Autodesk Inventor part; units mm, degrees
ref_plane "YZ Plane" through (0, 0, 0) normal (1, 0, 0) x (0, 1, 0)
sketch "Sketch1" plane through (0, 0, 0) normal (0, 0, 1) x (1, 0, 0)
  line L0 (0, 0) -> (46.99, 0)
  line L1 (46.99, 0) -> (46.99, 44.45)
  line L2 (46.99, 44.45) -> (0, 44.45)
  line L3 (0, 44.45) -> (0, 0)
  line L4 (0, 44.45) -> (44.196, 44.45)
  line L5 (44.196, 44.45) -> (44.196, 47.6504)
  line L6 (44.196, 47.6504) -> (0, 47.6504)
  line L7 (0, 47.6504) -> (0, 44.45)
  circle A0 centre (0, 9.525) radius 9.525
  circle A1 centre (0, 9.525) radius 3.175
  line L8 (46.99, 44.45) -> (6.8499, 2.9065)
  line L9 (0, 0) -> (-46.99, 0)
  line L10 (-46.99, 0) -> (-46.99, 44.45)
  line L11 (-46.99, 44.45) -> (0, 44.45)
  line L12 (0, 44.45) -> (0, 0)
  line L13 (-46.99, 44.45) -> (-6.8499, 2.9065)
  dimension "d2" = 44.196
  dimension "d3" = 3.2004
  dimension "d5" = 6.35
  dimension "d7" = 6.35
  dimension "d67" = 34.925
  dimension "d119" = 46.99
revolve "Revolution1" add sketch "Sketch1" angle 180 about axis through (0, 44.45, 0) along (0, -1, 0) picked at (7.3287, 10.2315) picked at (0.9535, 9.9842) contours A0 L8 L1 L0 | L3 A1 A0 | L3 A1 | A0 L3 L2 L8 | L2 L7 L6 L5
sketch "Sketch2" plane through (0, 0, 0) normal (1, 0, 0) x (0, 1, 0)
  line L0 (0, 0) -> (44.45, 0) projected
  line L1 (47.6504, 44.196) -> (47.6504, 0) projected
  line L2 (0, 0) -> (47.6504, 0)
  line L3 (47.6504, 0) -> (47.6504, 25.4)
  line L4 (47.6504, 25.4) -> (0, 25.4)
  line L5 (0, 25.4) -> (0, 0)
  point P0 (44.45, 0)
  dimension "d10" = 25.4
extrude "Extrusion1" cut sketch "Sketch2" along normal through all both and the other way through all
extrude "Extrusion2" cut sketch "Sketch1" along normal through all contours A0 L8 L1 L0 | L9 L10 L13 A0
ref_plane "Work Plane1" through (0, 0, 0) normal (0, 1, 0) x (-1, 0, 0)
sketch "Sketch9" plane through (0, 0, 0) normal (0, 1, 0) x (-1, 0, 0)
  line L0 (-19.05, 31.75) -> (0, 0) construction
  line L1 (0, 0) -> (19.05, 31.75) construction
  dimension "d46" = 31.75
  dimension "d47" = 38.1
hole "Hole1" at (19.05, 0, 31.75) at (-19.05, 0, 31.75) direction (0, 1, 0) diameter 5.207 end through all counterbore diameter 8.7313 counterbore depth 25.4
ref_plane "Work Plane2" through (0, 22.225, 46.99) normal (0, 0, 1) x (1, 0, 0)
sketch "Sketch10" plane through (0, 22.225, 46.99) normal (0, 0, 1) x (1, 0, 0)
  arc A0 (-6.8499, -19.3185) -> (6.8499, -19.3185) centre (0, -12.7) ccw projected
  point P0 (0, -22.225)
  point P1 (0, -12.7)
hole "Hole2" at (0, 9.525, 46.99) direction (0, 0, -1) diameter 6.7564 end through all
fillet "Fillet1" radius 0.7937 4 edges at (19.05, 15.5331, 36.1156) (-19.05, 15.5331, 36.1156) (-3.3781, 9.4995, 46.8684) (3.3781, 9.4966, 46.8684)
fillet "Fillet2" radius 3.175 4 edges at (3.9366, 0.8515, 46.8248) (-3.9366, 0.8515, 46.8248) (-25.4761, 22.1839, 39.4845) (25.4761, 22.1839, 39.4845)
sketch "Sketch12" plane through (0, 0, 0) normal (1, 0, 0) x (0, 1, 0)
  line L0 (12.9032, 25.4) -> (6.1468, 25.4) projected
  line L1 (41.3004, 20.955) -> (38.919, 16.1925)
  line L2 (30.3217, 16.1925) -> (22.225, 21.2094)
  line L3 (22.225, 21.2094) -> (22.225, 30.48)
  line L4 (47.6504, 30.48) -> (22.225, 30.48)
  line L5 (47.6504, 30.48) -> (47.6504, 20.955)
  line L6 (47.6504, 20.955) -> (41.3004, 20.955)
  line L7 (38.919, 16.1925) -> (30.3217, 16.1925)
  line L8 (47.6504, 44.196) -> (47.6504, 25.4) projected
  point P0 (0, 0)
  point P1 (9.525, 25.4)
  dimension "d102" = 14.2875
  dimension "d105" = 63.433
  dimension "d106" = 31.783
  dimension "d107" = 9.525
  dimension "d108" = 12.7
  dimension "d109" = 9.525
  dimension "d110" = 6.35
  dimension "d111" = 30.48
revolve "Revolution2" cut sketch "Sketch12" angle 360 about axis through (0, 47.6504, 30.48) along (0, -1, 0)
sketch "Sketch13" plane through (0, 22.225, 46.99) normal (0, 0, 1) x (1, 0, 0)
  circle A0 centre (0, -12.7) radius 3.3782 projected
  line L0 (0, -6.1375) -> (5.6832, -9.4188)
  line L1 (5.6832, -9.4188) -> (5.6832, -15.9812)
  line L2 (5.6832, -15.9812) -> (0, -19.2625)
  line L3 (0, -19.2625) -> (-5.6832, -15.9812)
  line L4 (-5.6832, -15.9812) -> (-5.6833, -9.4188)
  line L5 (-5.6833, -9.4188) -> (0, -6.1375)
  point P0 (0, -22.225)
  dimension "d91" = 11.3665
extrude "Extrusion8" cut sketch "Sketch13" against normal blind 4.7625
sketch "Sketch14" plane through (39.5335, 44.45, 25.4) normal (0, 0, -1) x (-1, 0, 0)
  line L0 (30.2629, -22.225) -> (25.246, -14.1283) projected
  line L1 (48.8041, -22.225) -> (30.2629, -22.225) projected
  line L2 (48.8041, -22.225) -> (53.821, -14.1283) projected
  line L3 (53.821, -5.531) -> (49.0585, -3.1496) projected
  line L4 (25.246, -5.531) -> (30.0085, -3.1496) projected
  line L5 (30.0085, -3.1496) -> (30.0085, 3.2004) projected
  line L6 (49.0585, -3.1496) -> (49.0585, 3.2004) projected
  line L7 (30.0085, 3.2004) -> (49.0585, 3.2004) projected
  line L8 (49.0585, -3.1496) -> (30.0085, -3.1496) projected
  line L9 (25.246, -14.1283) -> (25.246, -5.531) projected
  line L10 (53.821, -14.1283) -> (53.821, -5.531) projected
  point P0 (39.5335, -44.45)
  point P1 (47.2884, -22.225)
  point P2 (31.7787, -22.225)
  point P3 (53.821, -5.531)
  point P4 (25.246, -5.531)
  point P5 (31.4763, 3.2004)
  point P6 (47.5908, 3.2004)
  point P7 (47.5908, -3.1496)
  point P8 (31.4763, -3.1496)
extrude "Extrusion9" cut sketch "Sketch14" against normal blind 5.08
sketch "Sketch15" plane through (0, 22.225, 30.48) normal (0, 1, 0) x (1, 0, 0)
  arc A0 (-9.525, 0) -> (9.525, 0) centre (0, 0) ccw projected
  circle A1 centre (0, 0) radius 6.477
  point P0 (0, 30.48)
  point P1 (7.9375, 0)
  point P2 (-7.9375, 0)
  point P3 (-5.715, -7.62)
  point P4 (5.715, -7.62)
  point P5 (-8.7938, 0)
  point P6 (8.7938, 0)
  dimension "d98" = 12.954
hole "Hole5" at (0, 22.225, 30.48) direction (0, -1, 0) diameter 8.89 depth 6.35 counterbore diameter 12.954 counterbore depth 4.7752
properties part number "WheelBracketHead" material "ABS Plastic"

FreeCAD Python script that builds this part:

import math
import FreeCAD as App
import Part
import Sketcher

V = App.Vector
Q = App.Units.Quantity


def edges_at(feature, points):
    """Names of the edges that pass closest to the given points."""
    edges = feature.Shape.Edges
    near = lambda p: min(range(len(edges)), key=lambda i: edges[i].distToShape(Part.Vertex(*p))[0])
    return sorted({f"Edge{near(p) + 1}" for p in points})


def add_polygon(sketch, points):
    """Adds a closed chain of lines whose ends are joined by coincident constraints."""
    first, n = sketch.GeometryCount, len(points)
    for a, b in zip(points, points[1:] + points[:1]):
        sketch.addGeometry(Part.LineSegment(App.Vector(*a, 0), App.Vector(*b, 0)), False)
    for i in range(n):
        sketch.addConstraint(Sketcher.Constraint("Coincident", first + i, 2, first + (i + 1) % n, 1))

doc = App.newDocument("Part")
body = doc.addObject("PartDesign::Body", "Body")

# Sketch on XY plane
sketch1 = body.newObject("Sketcher::SketchObject", "Sketch")
sketch1.AttachmentSupport = (doc.getObject("XY_Plane"), [""])
sketch1.MapMode = "FlatFace"
add_polygon(sketch1, [(47, 0), (47, 44.5), (44.2, 44.5), (44.2, 47.7), (0, 47.7), (0, 0)])  # lines 0-5
sketch1.addConstraint(Sketcher.Constraint("Vertical", 0))
sketch1.addConstraint(Sketcher.Constraint("Horizontal", 1))
sketch1.addConstraint(Sketcher.Constraint("Vertical", 2))
sketch1.addConstraint(Sketcher.Constraint("Horizontal", 3))
sketch1.addConstraint(Sketcher.Constraint("Vertical", 4))
sketch1.addConstraint(Sketcher.Constraint("Horizontal", 5))
sketch1.addConstraint(Sketcher.Constraint("Coincident", 4, 2, -1, 1))
sketch1.addConstraint(Sketcher.Constraint("DistanceX", 3, 2, 3, 1, Q("1.74 in")))
sketch1.addConstraint(Sketcher.Constraint("DistanceX", 5, 1, 5, 2, Q("1.85 in")))
sketch1.addConstraint(Sketcher.Constraint("DistanceY", 2, 1, 2, 2, Q("0.126 in")))
sketch1.addConstraint(Sketcher.Constraint("DistanceY", 0, 1, 0, 2, Q("1.75 in")))
revolution = body.newObject("PartDesign::Revolution", "Revolution")
revolution.Profile = sketch1
revolution.ReferenceAxis = (sketch1, ["V_Axis"])
revolution.Angle = 180
revolution.Reversed = True

# Sketch on YZ plane
sketch2 = body.newObject("Sketcher::SketchObject", "Sketch001")
sketch2.AttachmentSupport = (doc.getObject("YZ_Plane"), [""])
sketch2.MapMode = "FlatFace"
add_polygon(sketch2, [(0, 25), (0, 0), (48, 0), (48, 25)])  # lines 0-3
sketch2.addConstraint(Sketcher.Constraint("Vertical", 0))
sketch2.addConstraint(Sketcher.Constraint("Horizontal", 1))
sketch2.addConstraint(Sketcher.Constraint("Vertical", 2))
sketch2.addConstraint(Sketcher.Constraint("Horizontal", 3))
sketch2.addConstraint(Sketcher.Constraint("Coincident", 0, 2, -1, 1))
sketch2.addConstraint(Sketcher.Constraint("DistanceY", 0, 2, 0, 1, Q("1 in")))
sketch2.addConstraint(Sketcher.Constraint("DistanceX", 1, 1, 1, 2, Q("1.876 in")))
pocket1 = body.newObject("PartDesign::Pocket", "Pocket")
pocket1.Profile = sketch2
pocket1.Type = "ThroughAll"
pocket1.Midplane = True

# Sketch on XY plane
sketch3 = body.newObject("Sketcher::SketchObject", "Sketch002")
sketch3.AttachmentSupport = (doc.getObject("XY_Plane"), [""])
sketch3.MapMode = "FlatFace"
sketch3.addGeometry(Part.ArcOfCircle(Part.Circle(V(0, 10, 0), V(0, 0, 1), 10), math.radians(-90), math.radians(-44)), False)
sketch3.addGeometry(Part.LineSegment(V(0, 0, 0), V(47, 0, 0)), False)
sketch3.addGeometry(Part.LineSegment(V(47, 0, 0), V(47, 44, 0)), False)
sketch3.addGeometry(Part.LineSegment(V(47, 44, 0), V(7, 3, 0)), False)
sketch3.addGeometry(Part.LineSegment(V(-47, 0, 0), V(0, 0, 0)), False)
sketch3.addGeometry(Part.ArcOfCircle(Part.Circle(V(0, 10, 0), V(0, 0, 1), 10), math.radians(-136), math.radians(-90)), False)
sketch3.addGeometry(Part.LineSegment(V(-7, 3, 0), V(-47, 44, 0)), False)
sketch3.addGeometry(Part.LineSegment(V(-47, 44, 0), V(-47, 0, 0)), False)
sketch3.addConstraint(Sketcher.Constraint("Tangent", 0, 1, 1, 1))
sketch3.addConstraint(Sketcher.Constraint("Coincident", 1, 2, 2, 1))
sketch3.addConstraint(Sketcher.Constraint("Coincident", 2, 2, 3, 1))
sketch3.addConstraint(Sketcher.Constraint("Tangent", 3, 2, 0, 2))
sketch3.addConstraint(Sketcher.Constraint("Tangent", 4, 2, 5, 2))
sketch3.addConstraint(Sketcher.Constraint("Tangent", 5, 1, 6, 1))
sketch3.addConstraint(Sketcher.Constraint("Coincident", 6, 2, 7, 1))
sketch3.addConstraint(Sketcher.Constraint("Coincident", 7, 2, 4, 1))
sketch3.addConstraint(Sketcher.Constraint("Horizontal", 1))
sketch3.addConstraint(Sketcher.Constraint("Vertical", 2))
sketch3.addConstraint(Sketcher.Constraint("Horizontal", 4))
sketch3.addConstraint(Sketcher.Constraint("Vertical", 7))
sketch3.addConstraint(Sketcher.Constraint("Coincident", 0, 1, -1, 1))
sketch3.addConstraint(Sketcher.Constraint("Coincident", 4, 2, -1, 1))
sketch3.addConstraint(Sketcher.Constraint("Equal", 0, 5))
sketch3.addConstraint(Sketcher.Constraint("Symmetric", 2, 2, 6, 2, -2))
sketch3.addConstraint(Sketcher.Constraint("DistanceX", 1, 1, 1, 2, Q("1.85 in")))
sketch3.addConstraint(Sketcher.Constraint("Radius", 0, Q("0.375 in")))
sketch3.addConstraint(Sketcher.Constraint("DistanceY", 0, 3, 2, 2, Q("1.375 in")))
pocket2 = body.newObject("PartDesign::Pocket", "Pocket001")
pocket2.Profile = sketch3
pocket2.Type = "ThroughAll"
pocket2.Reversed = True

# Sketch on XZ plane
sketch4 = body.newObject("Sketcher::SketchObject", "Sketch003")
sketch4.AttachmentSupport = (doc.getObject("XZ_Plane"), [""])
sketch4.MapMode = "FlatFace"
sketch4.addGeometry(Part.Circle(V(19.1, 31.8, 0), V(0, 0, 1), 2.6), False)
sketch4.addGeometry(Part.Circle(V(-19.1, 31.8, 0), V(0, 0, 1), 2.6), False)
sketch4.addConstraint(Sketcher.Constraint("Equal", 0, 1))
sketch4.addConstraint(Sketcher.Constraint("Symmetric", 0, 3, 1, 3, -2))
sketch4.addConstraint(Sketcher.Constraint("Diameter", 0, Q("0.205 in")))
sketch4.addConstraint(Sketcher.Constraint("DistanceX", 1, 3, 0, 3, Q("1.5 in")))
sketch4.addConstraint(Sketcher.Constraint("DistanceY", -1, 1, 0, 3, Q("1.25 in")))
doc.recompute()
hole = body.newObject("PartDesign::Hole", "Hole")
hole.Profile = sketch4
hole.ThreadType = "None"
hole.Diameter = Q("0.205 in")
hole.DepthType = "ThroughAll"
hole.HoleCutType = "Counterbore"
hole.HoleCutDiameter = Q("0.343752 in")
hole.HoleCutDepth = Q("1 in")

# Sketch on XY plane
sketch5 = body.newObject("Sketcher::SketchObject", "Sketch004")
sketch5.AttachmentSupport = (doc.getObject("XY_Plane"), [""])
sketch5.MapMode = "FlatFace"
sketch5.AttachmentOffset = App.Placement(V(0, 0, 1.85 * 25.4), App.Rotation())
sketch5.addGeometry(Part.Circle(V(0, 9.5, 0), V(0, 0, 1), 3.4), False)
sketch5.addConstraint(Sketcher.Constraint("PointOnObject", 0, 3, -2))
sketch5.addConstraint(Sketcher.Constraint("Diameter", 0, Q("0.266 in")))
sketch5.addConstraint(Sketcher.Constraint("DistanceY", -1, 1, 0, 3, Q("0.375 in")))
doc.recompute()
hole2 = body.newObject("PartDesign::Hole", "Hole001")
hole2.Profile = sketch5
hole2.ThreadType = "None"
hole2.Diameter = Q("0.266 in")
hole2.DepthType = "ThroughAll"
doc.recompute()

fillet = body.newObject("PartDesign::Fillet", "Fillet")
fillet.Base = (hole2, edges_at(hole2, [
    (19.05, 15.533, 36.116),
    (-19.05, 15.533, 36.116),
    (-3.378, 9.499, 46.868),
    (3.378, 9.497, 46.868),
]))
fillet.Radius = Q("0.031248 in")
doc.recompute()

fillet2 = body.newObject("PartDesign::Fillet", "Fillet001")
fillet2.Base = (fillet, edges_at(fillet, [
    (3.937, 0.852, 46.825),
    (-3.937, 0.852, 46.825),
    (-25.476, 22.184, 39.484),
    (25.476, 22.184, 39.484),
]))
fillet2.Radius = Q("0.125 in")

# Sketch on YZ plane
sketch6 = body.newObject("Sketcher::SketchObject", "Sketch005")
sketch6.AttachmentSupport = (doc.getObject("YZ_Plane"), [""])
sketch6.MapMode = "FlatFace"
add_polygon(sketch6, [(39, 16), (41, 21), (48, 21), (48, 30), (22, 30), (22, 21), (30, 16)])  # lines 0-6
sketch6.addGeometry(Part.LineSegment(V(48, 30, 0), V(22, 30, 0)), True)  # axis
sketch6.addConstraint(Sketcher.Constraint("Horizontal", 1))
sketch6.addConstraint(Sketcher.Constraint("Vertical", 2))
sketch6.addConstraint(Sketcher.Constraint("Horizontal", 3))
sketch6.addConstraint(Sketcher.Constraint("Vertical", 4))
sketch6.addConstraint(Sketcher.Constraint("Horizontal", 6))
sketch6.addConstraint(Sketcher.Constraint("Horizontal", 7))
sketch6.addConstraint(Sketcher.Constraint("Coincident", 7, 1, 2, 2))
sketch6.addConstraint(Sketcher.Constraint("Vertical", 4, 2, 7, 2))
sketch6.addConstraint(Sketcher.Constraint("DistanceX", 1, 1, 1, 2, Q("0.25 in")))
sketch6.addConstraint(Sketcher.Constraint("DistanceY", -1, 1, 2, 2, Q("1.2 in")))
sketch6.addConstraint(Sketcher.Constraint("DistanceY", 2, 1, 2, 2, Q("0.375 in")))
sketch6.addConstraint(Sketcher.Constraint("Distance", 5, Q("0.375 in")))
sketch6.addConstraint(Sketcher.Constraint("DistanceY", 5, 2, 3, 2, Q("0.5625 in")))
sketch6.addConstraint(Sketcher.Constraint("DistanceX", 3, 2, 3, 1, Q("1.001 in")))
sketch6.addConstraint(Sketcher.Constraint("DistanceX", -1, 1, 0, 2, Q("1.626 in")))
sketch6.addConstraint(Sketcher.Constraint("DistanceX", 6, 2, 0, 2, Q("0.0937559 in")))
sketch6.addConstraint(Sketcher.Constraint("DistanceX", 6, 1, 6, 2, 8.5973))
groove = body.newObject("PartDesign::Groove", "Groove")
groove.Profile = sketch6
groove.ReferenceAxis = (sketch6, ["Axis0"])
groove.Angle = 360

# Sketch on XY plane
sketch7 = body.newObject("Sketcher::SketchObject", "Sketch006")
sketch7.AttachmentSupport = (doc.getObject("XY_Plane"), [""])
sketch7.MapMode = "FlatFace"
sketch7.AttachmentOffset = App.Placement(V(0, 0, 1.85 * 25.4), App.Rotation())
add_polygon(sketch7, [(5.7, 12.8), (0, 16.1), (-5.7, 12.8), (-5.7, 6.2), (0, 3), (5.7, 6.2)])  # lines 0-5
sketch7.addGeometry(Part.Circle(V(0, 9.5, 0), V(0, 0, 1), 3.4), False)  # 6
sketch7.addConstraint(Sketcher.Constraint("Vertical", 2))
sketch7.addConstraint(Sketcher.Constraint("Vertical", 5))
sketch7.addConstraint(Sketcher.Constraint("Symmetric", 2, 2, 4, 2, -2))
sketch7.addConstraint(Sketcher.Constraint("PointOnObject", 6, 3, -2))
sketch7.addConstraint(Sketcher.Constraint("PointOnObject", 0, 2, -2))
sketch7.addConstraint(Sketcher.Constraint("PointOnObject", 3, 2, -2))
sketch7.addConstraint(Sketcher.Constraint("Parallel", 0, 3))
sketch7.addConstraint(Sketcher.Constraint("Parallel", 1, 4))
sketch7.addConstraint(Sketcher.Constraint("Diameter", 6, Q("0.266 in")))
sketch7.addConstraint(Sketcher.Constraint("Angle", 0, Q("149.9992 deg")))
sketch7.addConstraint(Sketcher.Constraint("DistanceX", 2, 2, 4, 2, Q("0.4475 in")))
sketch7.addConstraint(Sketcher.Constraint("DistanceY", -1, 1, 6, 3, Q("0.375 in")))
sketch7.addConstraint(Sketcher.Constraint("DistanceY", 2, 2, 2, 1, 6.5624))
sketch7.addConstraint(Sketcher.Constraint("DistanceY", -1, 1, 0, 2, 16.0875))
pocket3 = body.newObject("PartDesign::Pocket", "Pocket002")
pocket3.Profile = sketch7
pocket3.Length = Q("0.1875 in")

# Sketch on XY plane
sketch8 = body.newObject("Sketcher::SketchObject", "Sketch007")
sketch8.AttachmentSupport = (doc.getObject("XY_Plane"), [""])
sketch8.MapMode = "FlatFace"
sketch8.AttachmentOffset = App.Placement(V(0, 0, 1 * 25.4), App.Rotation())
add_polygon(sketch8, [(14, 30), (9, 22), (-9, 22), (-14, 30), (-14, 39), (-10, 41), (-10, 48), (10, 48), (10, 41), (14, 39)])  # lines 0-9
sketch8.addConstraint(Sketcher.Constraint("Horizontal", 1))
sketch8.addConstraint(Sketcher.Constraint("Vertical", 3))
sketch8.addConstraint(Sketcher.Constraint("Vertical", 5))
sketch8.addConstraint(Sketcher.Constraint("Horizontal", 6))
sketch8.addConstraint(Sketcher.Constraint("Vertical", 7))
sketch8.addConstraint(Sketcher.Constraint("Vertical", 9))
sketch8.addConstraint(Sketcher.Constraint("Symmetric", 4, 2, 7, 2, -2))
sketch8.addConstraint(Sketcher.Constraint("Symmetric", 3, 2, 8, 2, -2))
sketch8.addConstraint(Sketcher.Constraint("Horizontal", 2, 2, 9, 2))
sketch8.addConstraint(Sketcher.Constraint("Equal", 0, 2))
sketch8.addConstraint(Sketcher.Constraint("DistanceX", 6, 1, 6, 2, Q("0.75 in")))
sketch8.addConstraint(Sketcher.Constraint("DistanceY", 5, 1, 5, 2, Q("0.25 in")))
sketch8.addConstraint(Sketcher.Constraint("Distance", 0, Q("0.375 in")))
sketch8.addConstraint(Sketcher.Constraint("DistanceY", -1, 1, 0, 2, Q("0.875 in")))
sketch8.addConstraint(Sketcher.Constraint("DistanceX", 2, 2, -1, 1, Q("0.5625 in")))
sketch8.addConstraint(Sketcher.Constraint("DistanceY", -1, 1, 4, 2, Q("1.626 in")))
sketch8.addConstraint(Sketcher.Constraint("DistanceY", 3, 2, 4, 2, Q("0.0937559 in")))
sketch8.addConstraint(Sketcher.Constraint("DistanceX", 1, 2, 1, 1, 18.5412))
pocket4 = body.newObject("PartDesign::Pocket", "Pocket003")
pocket4.Profile = sketch8
pocket4.Length = Q("0.2 in")
pocket4.Reversed = True

# Sketch on XZ plane
sketch9 = body.newObject("Sketcher::SketchObject", "Sketch008")
sketch9.AttachmentSupport = (doc.getObject("XZ_Plane"), [""])
sketch9.MapMode = "FlatFace"
sketch9.AttachmentOffset = App.Placement(V(0, 0, -0.875 * 25.4), App.Rotation())
sketch9.addGeometry(Part.Circle(V(0, 30.5, 0), V(0, 0, 1), 4.4), False)
sketch9.addConstraint(Sketcher.Constraint("PointOnObject", 0, 3, -2))
sketch9.addConstraint(Sketcher.Constraint("Diameter", 0, Q("0.35 in")))
sketch9.addConstraint(Sketcher.Constraint("DistanceY", -1, 1, 0, 3, Q("1.2 in")))
doc.recompute()
hole3 = body.newObject("PartDesign::Hole", "Hole002")
hole3.Profile = sketch9
hole3.ThreadType = "None"
hole3.Diameter = Q("0.35 in")
hole3.DepthType = "Dimension"
hole3.Depth = Q("0.25 in")
hole3.DrillPoint = "Flat"
hole3.HoleCutType = "Counterbore"
hole3.HoleCutDiameter = Q("0.51 in")
hole3.HoleCutDepth = Q("0.188 in")
hole3.Reversed = True

doc.recompute()
